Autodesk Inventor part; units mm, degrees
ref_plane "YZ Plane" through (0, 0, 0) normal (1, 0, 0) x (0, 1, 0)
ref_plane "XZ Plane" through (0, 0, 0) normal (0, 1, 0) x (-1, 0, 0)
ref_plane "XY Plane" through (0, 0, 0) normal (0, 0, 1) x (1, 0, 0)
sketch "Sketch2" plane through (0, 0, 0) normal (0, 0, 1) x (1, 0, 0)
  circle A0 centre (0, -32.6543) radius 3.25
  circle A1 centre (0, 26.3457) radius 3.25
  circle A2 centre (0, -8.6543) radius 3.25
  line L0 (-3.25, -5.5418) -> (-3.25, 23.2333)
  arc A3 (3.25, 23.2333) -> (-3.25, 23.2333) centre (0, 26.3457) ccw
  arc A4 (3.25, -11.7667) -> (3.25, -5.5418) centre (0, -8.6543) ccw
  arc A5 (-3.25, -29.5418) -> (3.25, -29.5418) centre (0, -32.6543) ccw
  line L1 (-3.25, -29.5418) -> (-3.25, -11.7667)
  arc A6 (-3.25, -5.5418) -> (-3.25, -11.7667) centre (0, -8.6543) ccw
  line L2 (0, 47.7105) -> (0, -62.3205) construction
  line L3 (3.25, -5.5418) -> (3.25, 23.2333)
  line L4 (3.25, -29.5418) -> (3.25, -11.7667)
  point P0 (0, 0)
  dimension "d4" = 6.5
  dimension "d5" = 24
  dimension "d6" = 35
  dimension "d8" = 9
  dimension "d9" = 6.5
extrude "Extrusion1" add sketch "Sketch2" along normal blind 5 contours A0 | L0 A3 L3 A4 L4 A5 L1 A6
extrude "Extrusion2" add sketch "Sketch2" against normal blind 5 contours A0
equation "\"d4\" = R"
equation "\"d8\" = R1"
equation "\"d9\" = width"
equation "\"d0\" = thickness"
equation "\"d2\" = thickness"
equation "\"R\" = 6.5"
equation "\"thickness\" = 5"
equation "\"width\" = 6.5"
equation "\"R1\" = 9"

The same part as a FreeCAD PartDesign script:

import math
import FreeCAD as App
import Part
import Sketcher
Q = App.Units.Quantity

doc = App.newDocument("Part")
params = doc.addObject("Spreadsheet::Sheet", "Params")
for row, (alias, value) in enumerate([
    ("sketch1_diameter", "6.5 mm"),
    ("sketch1_radius", "4.5 mm"),
    ("pad1_length", "5 mm"),
    ("sketch2_diameter", "6.5 mm"),
    ("pad2_length", "5 mm"),
], start=1):
    params.set(f"A{row}", alias)
    params.set(f"B{row}", "=" + value)
    params.setAlias(f"B{row}", alias)

body = doc.addObject("PartDesign::Body", "Body")

# Sketch on XY plane
sketch1 = body.newObject("Sketcher::SketchObject", "Sketch")
sketch1.AttachmentSupport = (doc.getObject("XY_Plane"), [""])
sketch1.MapMode = "FlatFace"
sketch1.addGeometry(Part.LineSegment(App.Vector(-3.25, 23.2333, 0), App.Vector(-3.25, -5.5418, 0)), False)
sketch1.addGeometry(Part.ArcOfCircle(Part.Circle(App.Vector(0, -8.6543, 0), App.Vector(0, 0, 1), 4.499948), math.radians(136.238026), math.radians(223.761054)), False)
sketch1.addGeometry(Part.LineSegment(App.Vector(-3.25, -11.7667, 0), App.Vector(-3.25, -29.5418, 0)), False)
sketch1.addGeometry(Part.ArcOfCircle(Part.Circle(App.Vector(0, -32.6543, 0), App.Vector(0, 0, 1), 4.500017), math.radians(136.238026), math.radians(403.761974)), False)
sketch1.addGeometry(Part.LineSegment(App.Vector(3.25, -29.5418, 0), App.Vector(3.25, -11.7667, 0)), False)
sketch1.addGeometry(Part.ArcOfCircle(Part.Circle(App.Vector(0, -8.6543, 0), App.Vector(0, 0, 1), 4.500017), math.radians(-43.761054), math.radians(43.761974)), False)
sketch1.addGeometry(Part.LineSegment(App.Vector(3.25, -5.5418, 0), App.Vector(3.25, 23.2333, 0)), False)
sketch1.addGeometry(Part.ArcOfCircle(Part.Circle(App.Vector(0, 26.3457, 0), App.Vector(0, 0, 1), 4.499948), math.radians(-43.761054), math.radians(223.761054)), False)
sketch1.addGeometry(Part.Circle(App.Vector(0, 26.3457, 0), App.Vector(0, 0, 1), 3.25), False)
sketch1.addGeometry(Part.Circle(App.Vector(0, -8.6543, 0), App.Vector(0, 0, 1), 3.25), False)
sketch1.addConstraint(Sketcher.Constraint("Coincident", 0, 2, 1, 1))
sketch1.addConstraint(Sketcher.Constraint("Coincident", 1, 2, 2, 1))
sketch1.addConstraint(Sketcher.Constraint("Coincident", 2, 2, 3, 1))
sketch1.addConstraint(Sketcher.Constraint("Coincident", 3, 2, 4, 1))
sketch1.addConstraint(Sketcher.Constraint("Coincident", 4, 2, 5, 1))
sketch1.addConstraint(Sketcher.Constraint("Coincident", 5, 2, 6, 1))
sketch1.addConstraint(Sketcher.Constraint("Coincident", 6, 2, 7, 1))
sketch1.addConstraint(Sketcher.Constraint("Coincident", 7, 2, 0, 1))
sketch1.addConstraint(Sketcher.Constraint("Vertical", 0))
sketch1.addConstraint(Sketcher.Constraint("Vertical", 2))
sketch1.addConstraint(Sketcher.Constraint("Vertical", 4))
sketch1.addConstraint(Sketcher.Constraint("Vertical", 6))
sketch1.addConstraint(Sketcher.Constraint("Coincident", 5, 3, 1, 3))
sketch1.addConstraint(Sketcher.Constraint("Coincident", 8, 3, 7, 3))
sketch1.addConstraint(Sketcher.Constraint("Coincident", 9, 3, 1, 3))
sketch1.addConstraint(Sketcher.Constraint("Equal", 1, 3))
sketch1.addConstraint(Sketcher.Constraint("Equal", 3, 5))
sketch1.addConstraint(Sketcher.Constraint("Equal", 5, 7))
sketch1.addConstraint(Sketcher.Constraint("Equal", 8, 9))
sketch1.addConstraint(Sketcher.Constraint("Symmetric", 2, 2, 3, 2, -2))
sketch1.addConstraint(Sketcher.Constraint("Symmetric", 0, 2, 5, 2, -2))
sketch1.addConstraint(Sketcher.Constraint("PointOnObject", 7, 3, -2))
sketch1.addConstraint(Sketcher.Constraint("Vertical", 0, 2, 1, 2))
sketch1.addConstraint(Sketcher.Constraint("Diameter", 8, Q("6.5 mm")))
sketch1.addConstraint(Sketcher.Constraint("Radius", 1, Q("4.5 mm")))
sketch1.addConstraint(Sketcher.Constraint("DistanceY", 3, 3, 1, 3, Q("24 mm")))
sketch1.addConstraint(Sketcher.Constraint("DistanceY", 1, 3, 7, 3, Q("35 mm")))
sketch1.addConstraint(Sketcher.Constraint("DistanceX", 2, 2, 3, 2, Q("6.5 mm")))
sketch1.addConstraint(Sketcher.Constraint("DistanceY", 1, 3, -1, 1, Q("8.6543 mm")))
sketch1.setExpression("Constraints[23]", "Params.sketch1_diameter")
sketch1.setExpression("Constraints[24]", "Params.sketch1_radius")
pad1 = body.newObject("PartDesign::Pad", "Pad")
pad1.Profile = sketch1
pad1.setExpression("Length", "Params.pad1_length")

# Sketch on XY plane
sketch2 = body.newObject("Sketcher::SketchObject", "Sketch001")
sketch2.AttachmentSupport = (doc.getObject("XY_Plane"), [""])
sketch2.MapMode = "FlatFace"
sketch2.addGeometry(Part.Circle(App.Vector(0, -32.6543, 0), App.Vector(0, 0, 1), 3.25), False)
sketch2.addConstraint(Sketcher.Constraint("PointOnObject", 0, 3, -2))
sketch2.addConstraint(Sketcher.Constraint("Diameter", 0, Q("6.5 mm")))
sketch2.addConstraint(Sketcher.Constraint("DistanceY", 0, 3, -1, 1, Q("32.6543 mm")))
sketch2.setExpression("Constraints[1]", "Params.sketch2_diameter")
pad2 = body.newObject("PartDesign::Pad", "Pad001")
pad2.Profile = sketch2
pad2.setExpression("Length", "Params.pad2_length")
pad2.Reversed = True

doc.recompute()
